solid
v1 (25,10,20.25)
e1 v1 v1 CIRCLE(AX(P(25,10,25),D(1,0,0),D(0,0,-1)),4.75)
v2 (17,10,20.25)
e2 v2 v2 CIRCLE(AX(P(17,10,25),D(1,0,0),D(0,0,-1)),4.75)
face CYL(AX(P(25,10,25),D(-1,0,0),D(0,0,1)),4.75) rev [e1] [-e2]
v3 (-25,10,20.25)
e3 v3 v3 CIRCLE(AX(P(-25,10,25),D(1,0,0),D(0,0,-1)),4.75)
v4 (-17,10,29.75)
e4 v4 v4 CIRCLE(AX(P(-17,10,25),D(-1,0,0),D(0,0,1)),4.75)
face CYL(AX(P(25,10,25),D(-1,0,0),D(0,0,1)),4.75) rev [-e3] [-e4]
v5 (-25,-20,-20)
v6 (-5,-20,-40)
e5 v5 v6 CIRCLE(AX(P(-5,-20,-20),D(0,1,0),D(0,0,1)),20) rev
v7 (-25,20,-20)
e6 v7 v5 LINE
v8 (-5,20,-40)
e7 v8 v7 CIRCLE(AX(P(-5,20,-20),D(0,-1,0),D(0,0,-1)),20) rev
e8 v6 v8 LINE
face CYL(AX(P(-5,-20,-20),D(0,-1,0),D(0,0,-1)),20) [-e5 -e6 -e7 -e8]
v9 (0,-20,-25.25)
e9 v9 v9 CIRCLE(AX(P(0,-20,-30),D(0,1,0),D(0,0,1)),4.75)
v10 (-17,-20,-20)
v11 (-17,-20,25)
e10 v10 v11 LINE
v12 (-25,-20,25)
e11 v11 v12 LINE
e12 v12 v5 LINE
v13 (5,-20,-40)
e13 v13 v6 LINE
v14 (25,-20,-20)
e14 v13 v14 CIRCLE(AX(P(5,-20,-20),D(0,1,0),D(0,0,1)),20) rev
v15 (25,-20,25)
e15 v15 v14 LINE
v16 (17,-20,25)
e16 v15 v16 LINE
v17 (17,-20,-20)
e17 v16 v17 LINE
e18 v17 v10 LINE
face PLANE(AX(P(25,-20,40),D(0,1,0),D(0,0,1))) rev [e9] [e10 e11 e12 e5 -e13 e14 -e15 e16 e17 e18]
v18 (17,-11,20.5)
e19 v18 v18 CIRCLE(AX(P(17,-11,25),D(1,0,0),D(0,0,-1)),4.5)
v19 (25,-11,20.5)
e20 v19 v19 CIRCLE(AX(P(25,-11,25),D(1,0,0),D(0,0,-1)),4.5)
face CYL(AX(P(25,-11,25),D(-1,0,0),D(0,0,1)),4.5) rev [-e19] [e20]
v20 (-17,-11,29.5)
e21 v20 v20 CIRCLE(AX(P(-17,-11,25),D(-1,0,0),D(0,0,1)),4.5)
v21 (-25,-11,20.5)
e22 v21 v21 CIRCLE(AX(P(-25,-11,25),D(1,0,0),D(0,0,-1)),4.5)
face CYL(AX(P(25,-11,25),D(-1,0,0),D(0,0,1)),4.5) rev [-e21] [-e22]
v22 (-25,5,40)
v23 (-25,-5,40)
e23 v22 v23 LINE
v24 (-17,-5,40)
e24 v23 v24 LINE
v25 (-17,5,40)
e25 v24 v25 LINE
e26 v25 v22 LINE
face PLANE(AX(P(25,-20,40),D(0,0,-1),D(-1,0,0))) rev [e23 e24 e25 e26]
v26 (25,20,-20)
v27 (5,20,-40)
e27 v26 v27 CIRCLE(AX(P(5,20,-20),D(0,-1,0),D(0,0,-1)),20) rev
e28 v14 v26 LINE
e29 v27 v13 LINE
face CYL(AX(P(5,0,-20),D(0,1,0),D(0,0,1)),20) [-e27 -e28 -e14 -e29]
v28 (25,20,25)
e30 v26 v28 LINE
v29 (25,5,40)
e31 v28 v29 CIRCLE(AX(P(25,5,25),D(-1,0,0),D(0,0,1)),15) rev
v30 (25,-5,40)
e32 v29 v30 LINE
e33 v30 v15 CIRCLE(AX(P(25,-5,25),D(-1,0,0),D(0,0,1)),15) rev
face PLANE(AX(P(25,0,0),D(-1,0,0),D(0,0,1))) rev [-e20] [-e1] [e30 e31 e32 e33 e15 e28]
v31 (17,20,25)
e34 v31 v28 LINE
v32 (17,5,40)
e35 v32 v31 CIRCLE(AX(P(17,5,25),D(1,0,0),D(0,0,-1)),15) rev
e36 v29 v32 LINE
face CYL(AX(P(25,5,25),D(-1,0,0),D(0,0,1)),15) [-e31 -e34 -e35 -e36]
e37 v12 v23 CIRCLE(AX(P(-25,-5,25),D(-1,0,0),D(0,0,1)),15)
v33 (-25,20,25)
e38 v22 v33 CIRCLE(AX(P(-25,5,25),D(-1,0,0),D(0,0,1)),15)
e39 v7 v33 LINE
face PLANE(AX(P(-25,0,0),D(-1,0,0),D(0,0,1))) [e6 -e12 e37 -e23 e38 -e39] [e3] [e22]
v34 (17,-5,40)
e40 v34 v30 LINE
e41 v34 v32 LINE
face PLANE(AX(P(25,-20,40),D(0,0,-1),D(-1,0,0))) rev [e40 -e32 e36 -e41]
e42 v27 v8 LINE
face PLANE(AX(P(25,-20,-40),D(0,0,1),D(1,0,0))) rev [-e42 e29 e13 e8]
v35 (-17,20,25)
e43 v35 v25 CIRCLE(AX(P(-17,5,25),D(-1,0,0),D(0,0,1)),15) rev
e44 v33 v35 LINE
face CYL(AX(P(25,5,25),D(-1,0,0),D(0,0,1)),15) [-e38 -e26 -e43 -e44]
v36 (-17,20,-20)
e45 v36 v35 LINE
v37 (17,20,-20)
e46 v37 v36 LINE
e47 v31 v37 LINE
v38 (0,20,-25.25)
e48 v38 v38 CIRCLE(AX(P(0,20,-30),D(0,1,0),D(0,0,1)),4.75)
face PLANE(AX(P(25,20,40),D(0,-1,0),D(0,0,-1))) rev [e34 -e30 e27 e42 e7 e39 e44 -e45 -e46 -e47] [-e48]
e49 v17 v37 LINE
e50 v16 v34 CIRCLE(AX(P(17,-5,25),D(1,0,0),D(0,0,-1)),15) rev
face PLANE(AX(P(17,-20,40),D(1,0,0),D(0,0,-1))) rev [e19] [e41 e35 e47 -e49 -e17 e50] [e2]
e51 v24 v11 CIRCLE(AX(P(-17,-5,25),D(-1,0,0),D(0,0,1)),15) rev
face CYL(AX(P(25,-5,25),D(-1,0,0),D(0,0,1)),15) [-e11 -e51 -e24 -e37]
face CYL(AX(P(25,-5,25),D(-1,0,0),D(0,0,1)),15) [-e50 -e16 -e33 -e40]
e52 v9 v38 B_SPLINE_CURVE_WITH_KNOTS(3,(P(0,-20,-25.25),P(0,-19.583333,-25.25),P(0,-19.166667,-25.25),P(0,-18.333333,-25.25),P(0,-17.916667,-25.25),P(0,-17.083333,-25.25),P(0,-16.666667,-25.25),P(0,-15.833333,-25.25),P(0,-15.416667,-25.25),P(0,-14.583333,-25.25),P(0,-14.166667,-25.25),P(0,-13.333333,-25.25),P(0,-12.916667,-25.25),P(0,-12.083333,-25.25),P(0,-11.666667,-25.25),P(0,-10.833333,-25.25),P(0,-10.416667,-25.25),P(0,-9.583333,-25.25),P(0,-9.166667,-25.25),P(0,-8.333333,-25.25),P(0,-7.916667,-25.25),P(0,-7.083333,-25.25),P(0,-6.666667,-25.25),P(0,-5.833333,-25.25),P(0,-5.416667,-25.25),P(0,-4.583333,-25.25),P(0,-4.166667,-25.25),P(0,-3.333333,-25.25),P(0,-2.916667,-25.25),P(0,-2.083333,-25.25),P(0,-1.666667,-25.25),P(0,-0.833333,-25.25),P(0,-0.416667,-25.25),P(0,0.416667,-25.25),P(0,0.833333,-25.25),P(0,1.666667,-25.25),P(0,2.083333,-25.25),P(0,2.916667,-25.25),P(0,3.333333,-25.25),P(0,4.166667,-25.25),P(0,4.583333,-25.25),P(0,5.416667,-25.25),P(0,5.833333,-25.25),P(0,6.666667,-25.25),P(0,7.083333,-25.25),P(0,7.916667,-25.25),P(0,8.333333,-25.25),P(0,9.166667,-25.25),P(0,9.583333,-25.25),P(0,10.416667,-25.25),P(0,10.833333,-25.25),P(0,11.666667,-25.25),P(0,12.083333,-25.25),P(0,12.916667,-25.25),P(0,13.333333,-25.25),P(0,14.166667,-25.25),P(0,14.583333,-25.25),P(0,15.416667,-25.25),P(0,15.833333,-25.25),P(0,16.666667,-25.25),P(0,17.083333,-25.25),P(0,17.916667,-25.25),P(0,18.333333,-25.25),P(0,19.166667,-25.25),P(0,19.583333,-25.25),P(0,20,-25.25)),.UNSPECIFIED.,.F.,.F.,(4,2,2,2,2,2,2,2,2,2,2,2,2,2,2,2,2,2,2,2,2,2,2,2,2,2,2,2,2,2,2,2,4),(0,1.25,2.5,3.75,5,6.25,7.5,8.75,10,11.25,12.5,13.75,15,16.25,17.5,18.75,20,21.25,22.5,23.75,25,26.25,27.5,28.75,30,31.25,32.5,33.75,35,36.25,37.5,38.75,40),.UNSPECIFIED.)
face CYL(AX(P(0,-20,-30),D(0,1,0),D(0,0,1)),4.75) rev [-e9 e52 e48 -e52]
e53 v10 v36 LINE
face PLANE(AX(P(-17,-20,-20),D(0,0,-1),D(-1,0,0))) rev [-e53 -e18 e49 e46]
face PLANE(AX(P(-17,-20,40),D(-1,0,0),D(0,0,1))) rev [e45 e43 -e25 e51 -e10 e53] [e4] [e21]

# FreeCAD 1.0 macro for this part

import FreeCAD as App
import Part
import Sketcher
from FreeCAD import Vector


def edges_at(feature, points):
    """Names of the edges that pass closest to the given points."""
    edges = feature.Shape.Edges
    near = lambda p: min(range(len(edges)), key=lambda i: edges[i].distToShape(Part.Vertex(*p))[0])
    return sorted({f"Edge{near(p) + 1}" for p in points})

doc = App.newDocument("Part")
body = doc.addObject("PartDesign::Body", "Body")

sketch1 = body.newObject("Sketcher::SketchObject", "Sketch")
sketch1.AttachmentSupport = (doc.getObject("YZ_Plane"), [""])
sketch1.MapMode = "FlatFace"
sketch1.addGeometry([
    Part.LineSegment(Vector(20, 40, 0), Vector(-20, 40, 0)),
    Part.LineSegment(Vector(-20, 40, 0), Vector(-20, -40, 0)),
    Part.LineSegment(Vector(-20, -40, 0), Vector(20, -40, 0)),
    Part.LineSegment(Vector(20, -40, 0), Vector(20, 40, 0)),
    Part.Circle(Vector(-11, 25, 0), Vector(0, 0, 1), 4.5),
    Part.Circle(Vector(10, 25, 0), Vector(0, 0, 1), 4.8),
], False)
sketch1.addConstraint([
    Sketcher.Constraint("Coincident", 0, 2, 1, 1),
    Sketcher.Constraint("Coincident", 1, 2, 2, 1),
    Sketcher.Constraint("Coincident", 2, 2, 3, 1),
    Sketcher.Constraint("Coincident", 3, 2, 0, 1),
    Sketcher.Constraint("Horizontal", 0),
    Sketcher.Constraint("Vertical", 1),
    Sketcher.Constraint("Horizontal", 2),
    Sketcher.Constraint("Vertical", 3),
    Sketcher.Constraint("Symmetric", 0, 2, 2, 2, -1, 1),
    Sketcher.Constraint("Horizontal", 4, 3, 5, 3),
    Sketcher.Constraint("Diameter", 4, 9.0),
    Sketcher.Constraint("Diameter", 5, 9.5),
    Sketcher.Constraint("DistanceX", 0, 2, 0, 1, 40.0),
    Sketcher.Constraint("DistanceY", 1, 2, 1, 1, 80.0),
    Sketcher.Constraint("DistanceX", 4, 3, -1, 1, 11.0),
    Sketcher.Constraint("DistanceY", -1, 1, 4, 3, 25.0),
    Sketcher.Constraint("DistanceX", -1, 1, 5, 3, 10.0),
])
pad1 = body.newObject("PartDesign::Pad", "Pad")
pad1.Profile = sketch1
pad1.Length = 50
pad1.Midplane = True

sketch2 = body.newObject("Sketcher::SketchObject", "Sketch001")
sketch2.AttachmentSupport = (doc.getObject("XZ_Plane"), [""])
sketch2.MapMode = "FlatFace"
sketch2.addGeometry([
    Part.LineSegment(Vector(-17, -20, 0), Vector(-17, 40, 0)),
    Part.LineSegment(Vector(-17, 40, 0), Vector(17, 40, 0)),
    Part.LineSegment(Vector(17, 40, 0), Vector(17, -20, 0)),
    Part.LineSegment(Vector(17, -20, 0), Vector(-17, -20, 0)),
], False)
sketch2.addConstraint([
    Sketcher.Constraint("Coincident", 0, 2, 1, 1),
    Sketcher.Constraint("Coincident", 1, 2, 2, 1),
    Sketcher.Constraint("Coincident", 2, 2, 3, 1),
    Sketcher.Constraint("Coincident", 3, 2, 0, 1),
    Sketcher.Constraint("Vertical", 0),
    Sketcher.Constraint("Horizontal", 1),
    Sketcher.Constraint("Vertical", 2),
    Sketcher.Constraint("Horizontal", 3),
    Sketcher.Constraint("DistanceX", 1, 1, 1, 2, 34.0),
    Sketcher.Constraint("DistanceY", 0, 1, 0, 2, 60.0),
    Sketcher.Constraint("DistanceX", 0, 2, -1, 1, 17.0),
    Sketcher.Constraint("DistanceY", -1, 1, 0, 2, 40.0),
])
pocket1 = body.newObject("PartDesign::Pocket", "Pocket")
pocket1.Profile = sketch2
pocket1.Type = "ThroughAll"
pocket1.Midplane = True

sketch3 = body.newObject("Sketcher::SketchObject", "Sketch002")
sketch3.AttachmentSupport = (doc.getObject("XZ_Plane"), [""])
sketch3.MapMode = "FlatFace"
sketch3.addGeometry(Part.Circle(Vector(0, -30, 0), Vector(0, 0, 1), 4.8), False)
sketch3.addConstraint([
    Sketcher.Constraint("PointOnObject", 0, 3, -2),
    Sketcher.Constraint("Diameter", 0, 9.5),
    Sketcher.Constraint("DistanceY", 0, 3, -1, 1, 30.0),
])
pocket2 = body.newObject("PartDesign::Pocket", "Pocket001")
pocket2.Profile = sketch3
pocket2.Type = "ThroughAll"
pocket2.Midplane = True
doc.recompute()

fillet = body.newObject("PartDesign::Fillet", "Fillet")
fillet.Base = (pocket2, edges_at(pocket2, [(25, 0, -40), (-25, 0, -40)]))
fillet.Radius = 20
doc.recompute()

fillet2 = body.newObject("PartDesign::Fillet", "Fillet001")
fillet2.Base = (fillet, edges_at(fillet, [
    (-21, -20, 40),
    (-21, 20, 40),
    (21, -20, 40),
    (21, 20, 40),
]))
fillet2.Radius = 15

doc.recompute()
